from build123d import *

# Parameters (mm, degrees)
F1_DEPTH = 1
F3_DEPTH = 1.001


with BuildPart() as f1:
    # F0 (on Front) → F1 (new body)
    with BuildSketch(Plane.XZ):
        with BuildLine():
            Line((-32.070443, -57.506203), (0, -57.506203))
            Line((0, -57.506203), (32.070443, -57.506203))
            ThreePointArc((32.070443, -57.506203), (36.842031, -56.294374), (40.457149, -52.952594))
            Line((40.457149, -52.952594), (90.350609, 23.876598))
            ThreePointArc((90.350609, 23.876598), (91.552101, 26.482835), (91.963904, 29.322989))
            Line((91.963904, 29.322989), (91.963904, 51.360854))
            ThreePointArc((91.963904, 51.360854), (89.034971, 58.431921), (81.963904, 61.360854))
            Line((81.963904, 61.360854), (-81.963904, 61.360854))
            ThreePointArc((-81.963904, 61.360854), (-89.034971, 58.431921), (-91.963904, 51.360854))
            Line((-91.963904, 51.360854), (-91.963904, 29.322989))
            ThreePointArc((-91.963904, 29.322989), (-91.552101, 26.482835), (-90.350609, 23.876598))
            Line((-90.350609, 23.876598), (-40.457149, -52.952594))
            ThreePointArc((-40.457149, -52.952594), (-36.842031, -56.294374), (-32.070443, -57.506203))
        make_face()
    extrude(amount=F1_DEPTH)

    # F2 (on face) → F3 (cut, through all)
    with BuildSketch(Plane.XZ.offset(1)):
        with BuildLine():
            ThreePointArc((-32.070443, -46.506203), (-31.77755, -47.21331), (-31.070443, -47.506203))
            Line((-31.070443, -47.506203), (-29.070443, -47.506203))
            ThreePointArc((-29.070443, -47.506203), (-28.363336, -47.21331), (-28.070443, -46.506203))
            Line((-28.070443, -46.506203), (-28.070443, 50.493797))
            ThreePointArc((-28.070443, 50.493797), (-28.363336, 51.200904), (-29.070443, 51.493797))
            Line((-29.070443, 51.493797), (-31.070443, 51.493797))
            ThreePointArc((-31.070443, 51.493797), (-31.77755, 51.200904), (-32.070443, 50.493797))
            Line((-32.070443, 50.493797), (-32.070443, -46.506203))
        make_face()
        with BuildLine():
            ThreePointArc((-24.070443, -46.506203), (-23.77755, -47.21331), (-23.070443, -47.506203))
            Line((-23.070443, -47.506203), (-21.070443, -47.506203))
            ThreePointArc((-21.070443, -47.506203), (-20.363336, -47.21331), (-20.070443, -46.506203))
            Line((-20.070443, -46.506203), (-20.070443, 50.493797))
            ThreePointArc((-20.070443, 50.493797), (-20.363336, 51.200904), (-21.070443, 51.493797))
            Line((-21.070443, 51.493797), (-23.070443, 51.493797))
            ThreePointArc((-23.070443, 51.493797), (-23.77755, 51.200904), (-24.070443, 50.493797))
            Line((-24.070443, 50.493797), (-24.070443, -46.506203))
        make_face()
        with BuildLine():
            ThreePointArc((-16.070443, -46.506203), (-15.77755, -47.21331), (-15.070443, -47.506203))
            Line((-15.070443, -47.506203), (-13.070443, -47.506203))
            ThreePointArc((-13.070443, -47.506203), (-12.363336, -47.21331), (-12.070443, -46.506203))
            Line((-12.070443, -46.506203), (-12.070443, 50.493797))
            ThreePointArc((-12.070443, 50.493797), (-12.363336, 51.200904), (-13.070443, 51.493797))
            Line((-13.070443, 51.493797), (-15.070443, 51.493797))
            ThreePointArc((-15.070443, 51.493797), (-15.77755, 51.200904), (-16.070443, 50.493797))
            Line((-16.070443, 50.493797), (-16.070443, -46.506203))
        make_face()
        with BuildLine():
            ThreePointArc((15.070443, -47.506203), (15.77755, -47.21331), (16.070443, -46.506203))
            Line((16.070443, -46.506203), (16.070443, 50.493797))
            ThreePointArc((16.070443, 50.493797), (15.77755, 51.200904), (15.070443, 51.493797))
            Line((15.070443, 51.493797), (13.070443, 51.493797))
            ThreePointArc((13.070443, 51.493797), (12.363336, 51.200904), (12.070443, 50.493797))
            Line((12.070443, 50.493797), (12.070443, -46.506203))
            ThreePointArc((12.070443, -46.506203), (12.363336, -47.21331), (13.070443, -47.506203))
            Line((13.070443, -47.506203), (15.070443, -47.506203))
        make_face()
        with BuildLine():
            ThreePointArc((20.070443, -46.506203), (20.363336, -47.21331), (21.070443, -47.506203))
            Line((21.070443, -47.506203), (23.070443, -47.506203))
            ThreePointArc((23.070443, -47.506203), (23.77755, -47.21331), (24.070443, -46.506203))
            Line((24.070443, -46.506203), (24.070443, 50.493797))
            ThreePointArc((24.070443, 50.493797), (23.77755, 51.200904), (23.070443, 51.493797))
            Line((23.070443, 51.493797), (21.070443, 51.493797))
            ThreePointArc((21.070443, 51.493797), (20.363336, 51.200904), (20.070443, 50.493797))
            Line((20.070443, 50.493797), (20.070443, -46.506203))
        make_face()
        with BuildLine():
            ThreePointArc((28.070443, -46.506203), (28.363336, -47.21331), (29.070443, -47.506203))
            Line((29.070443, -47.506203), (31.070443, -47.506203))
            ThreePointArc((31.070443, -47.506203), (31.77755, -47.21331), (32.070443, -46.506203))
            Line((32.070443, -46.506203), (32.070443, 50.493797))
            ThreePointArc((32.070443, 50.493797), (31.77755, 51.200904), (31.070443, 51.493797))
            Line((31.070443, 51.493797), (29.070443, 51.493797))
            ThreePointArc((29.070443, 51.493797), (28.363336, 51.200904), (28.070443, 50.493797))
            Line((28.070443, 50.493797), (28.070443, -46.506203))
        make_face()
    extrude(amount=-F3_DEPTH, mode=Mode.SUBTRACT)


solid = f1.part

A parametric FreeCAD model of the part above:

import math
import FreeCAD as App
import Part
import Sketcher
from FreeCAD import Vector
Q = App.Units.Quantity

doc = App.newDocument("Part")
params = doc.addObject("Spreadsheet::Sheet", "Params")
for row, (alias, value) in enumerate([
    ("sketch1_radius", "10.000002 mm"),
    ("pad1_length", "1 mm"),
    ("sketch2_radius", "0.999999 mm"),
    ("sketch2_width", "2 mm"),
    ("sketch2_height", "97 mm"),
], start=1):
    params.set(f"A{row}", alias)
    params.set(f"B{row}", "=" + value)
    params.setAlias(f"B{row}", alias)

body = doc.addObject("PartDesign::Body", "Body")

sketch1 = body.newObject("Sketcher::SketchObject", "Sketch")
sketch1.AttachmentSupport = (doc.getObject("XZ_Plane"), [""])
sketch1.MapMode = "FlatFace"
sketch1.addGeometry(Part.LineSegment(Vector(-32.070443, -57.506203, 0), Vector(32.070443, -57.506203, 0)), False)
sketch1.addGeometry(Part.ArcOfCircle(Part.Circle(Vector(32.070443, -47.506201, 0), Vector(0, 0, 1), 10.000002), math.radians(-89.999998), math.radians(-33.000011)), False)
sketch1.addGeometry(Part.LineSegment(Vector(40.457149, -52.952594, 0), Vector(90.350609, 23.876598, 0)), False)
sketch1.addGeometry(Part.ArcOfCircle(Part.Circle(Vector(81.963902, 29.32299, 0), Vector(0, 0, 1), 10.000002), math.radians(-33.000005), math.radians(-0.000005)), False)
sketch1.addGeometry(Part.LineSegment(Vector(91.963904, 29.322989, 0), Vector(91.963904, 51.360854, 0)), False)
sketch1.addGeometry(Part.ArcOfCircle(Part.Circle(Vector(81.963901, 51.360851, 0), Vector(0, 0, 1), 10.000003), math.radians(0.000016), math.radians(89.999984)), False)
sketch1.addGeometry(Part.LineSegment(Vector(81.963904, 61.360854, 0), Vector(-81.963904, 61.360854, 0)), False)
sketch1.addGeometry(Part.ArcOfCircle(Part.Circle(Vector(-81.963901, 51.360851, 0), Vector(0, 0, 1), 10.000003), math.radians(90.000016), math.radians(179.999984)), False)
sketch1.addGeometry(Part.LineSegment(Vector(-91.963904, 51.360854, 0), Vector(-91.963904, 29.322989, 0)), False)
sketch1.addGeometry(Part.ArcOfCircle(Part.Circle(Vector(-81.963902, 29.32299, 0), Vector(0, 0, 1), 10.000002), math.radians(-179.999995), math.radians(-146.999995)), False)
sketch1.addGeometry(Part.LineSegment(Vector(-90.350609, 23.876598, 0), Vector(-40.457149, -52.952594, 0)), False)
sketch1.addGeometry(Part.ArcOfCircle(Part.Circle(Vector(-32.070443, -47.506201, 0), Vector(0, 0, 1), 10.000002), math.radians(-146.999989), math.radians(-90.000002)), False)
sketch1.addConstraint(Sketcher.Constraint("Tangent", 0, 2, 1, 1))
sketch1.addConstraint(Sketcher.Constraint("Tangent", 1, 2, 2, 1))
sketch1.addConstraint(Sketcher.Constraint("Tangent", 2, 2, 3, 1))
sketch1.addConstraint(Sketcher.Constraint("Tangent", 3, 2, 4, 1))
sketch1.addConstraint(Sketcher.Constraint("Tangent", 4, 2, 5, 1))
sketch1.addConstraint(Sketcher.Constraint("Tangent", 5, 2, 6, 1))
sketch1.addConstraint(Sketcher.Constraint("Tangent", 6, 2, 7, 1))
sketch1.addConstraint(Sketcher.Constraint("Tangent", 7, 2, 8, 1))
sketch1.addConstraint(Sketcher.Constraint("Tangent", 8, 2, 9, 1))
sketch1.addConstraint(Sketcher.Constraint("Tangent", 9, 2, 10, 1))
sketch1.addConstraint(Sketcher.Constraint("Tangent", 10, 2, 11, 1))
sketch1.addConstraint(Sketcher.Constraint("Tangent", 11, 2, 0, 1))
sketch1.addConstraint(Sketcher.Constraint("Horizontal", 0))
sketch1.addConstraint(Sketcher.Constraint("Vertical", 4))
sketch1.addConstraint(Sketcher.Constraint("Horizontal", 6))
sketch1.addConstraint(Sketcher.Constraint("Vertical", 8))
sketch1.addConstraint(Sketcher.Constraint("Equal", 1, 3))
sketch1.addConstraint(Sketcher.Constraint("Equal", 3, 5))
sketch1.addConstraint(Sketcher.Constraint("Equal", 5, 7))
sketch1.addConstraint(Sketcher.Constraint("Equal", 7, 9))
sketch1.addConstraint(Sketcher.Constraint("Equal", 9, 11))
sketch1.addConstraint(Sketcher.Constraint("Symmetric", 3, 3, 9, 3, -2))
sketch1.addConstraint(Sketcher.Constraint("Horizontal", 2, 2, 9, 2))
sketch1.addConstraint(Sketcher.Constraint("Radius", 3, Q("10.000002 mm")))
sketch1.addConstraint(Sketcher.Constraint("Angle", 2, Q("57 deg")))
sketch1.addConstraint(Sketcher.Constraint("DistanceX", 6, 2, 6, 1, Q("163.927808 mm")))
sketch1.addConstraint(Sketcher.Constraint("DistanceY", 1, 3, -1, 1, Q("47.506201 mm")))
sketch1.addConstraint(Sketcher.Constraint("DistanceY", -1, 1, 2, 2, Q("23.876598 mm")))
sketch1.addConstraint(Sketcher.Constraint("DistanceY", 4, 1, 4, 2, Q("22.037865 mm")))
sketch1.setExpression("Constraints[23]", "Params.sketch1_radius")
pad1 = body.newObject("PartDesign::Pad", "Pad")
pad1.Profile = sketch1
pad1.setExpression("Length", "Params.pad1_length")

sketch2 = body.newObject("Sketcher::SketchObject", "Sketch001")
sketch2.AttachmentSupport = (doc.getObject("XZ_Plane"), [""])
sketch2.MapMode = "FlatFace"
sketch2.AttachmentOffset = App.Placement(Vector(0, 0, 1), App.Rotation())
sketch2.addGeometry(Part.ArcOfCircle(Part.Circle(Vector(-31.070444, -46.506204, 0), Vector(0, 0, 1), 0.999999), math.radians(179.999957), math.radians(270.000043)), False)
sketch2.addGeometry(Part.LineSegment(Vector(-31.070443, -47.506203, 0), Vector(-29.070443, -47.506203, 0)), False)
sketch2.addGeometry(Part.ArcOfCircle(Part.Circle(Vector(-29.070442, -46.506204, 0), Vector(0, 0, 1), 0.999999), math.radians(-90.000043), math.radians(0.000043)), False)
sketch2.addGeometry(Part.LineSegment(Vector(-28.070443, -46.506203, 0), Vector(-28.070443, 50.493797, 0)), False)
sketch2.addGeometry(Part.ArcOfCircle(Part.Circle(Vector(-29.070442, 50.493798, 0), Vector(0, 0, 1), 0.999999), math.radians(-0.000043), math.radians(90.000043)), False)
sketch2.addGeometry(Part.LineSegment(Vector(-29.070443, 51.493797, 0), Vector(-31.070443, 51.493797, 0)), False)
sketch2.addGeometry(Part.ArcOfCircle(Part.Circle(Vector(-31.070444, 50.493798, 0), Vector(0, 0, 1), 0.999999), math.radians(89.999957), math.radians(180.000043)), False)
sketch2.addGeometry(Part.LineSegment(Vector(-32.070443, 50.493797, 0), Vector(-32.070443, -46.506203, 0)), False)
sketch2.addGeometry(Part.ArcOfCircle(Part.Circle(Vector(-23.070444, -46.506204, 0), Vector(0, 0, 1), 0.999999), math.radians(179.999957), math.radians(270.000043)), False)
sketch2.addGeometry(Part.LineSegment(Vector(-23.070443, -47.506203, 0), Vector(-21.070443, -47.506203, 0)), False)
sketch2.addGeometry(Part.ArcOfCircle(Part.Circle(Vector(-21.070442, -46.506204, 0), Vector(0, 0, 1), 0.999999), math.radians(-90.000043), math.radians(0.000043)), False)
sketch2.addGeometry(Part.LineSegment(Vector(-20.070443, -46.506203, 0), Vector(-20.070443, 50.493797, 0)), False)
sketch2.addGeometry(Part.ArcOfCircle(Part.Circle(Vector(-21.070442, 50.493798, 0), Vector(0, 0, 1), 0.999999), math.radians(-0.000043), math.radians(90.000043)), False)
sketch2.addGeometry(Part.LineSegment(Vector(-21.070443, 51.493797, 0), Vector(-23.070443, 51.493797, 0)), False)
sketch2.addGeometry(Part.ArcOfCircle(Part.Circle(Vector(-23.070444, 50.493798, 0), Vector(0, 0, 1), 0.999999), math.radians(89.999957), math.radians(180.000043)), False)
sketch2.addGeometry(Part.LineSegment(Vector(-24.070443, 50.493797, 0), Vector(-24.070443, -46.506203, 0)), False)
sketch2.addGeometry(Part.ArcOfCircle(Part.Circle(Vector(-15.070444, -46.506204, 0), Vector(0, 0, 1), 0.999999), math.radians(179.999957), math.radians(270.000043)), False)
sketch2.addGeometry(Part.LineSegment(Vector(-15.070443, -47.506203, 0), Vector(-13.070443, -47.506203, 0)), False)
sketch2.addGeometry(Part.ArcOfCircle(Part.Circle(Vector(-13.070442, -46.506204, 0), Vector(0, 0, 1), 0.999999), math.radians(-90.000043), math.radians(0.000043)), False)
sketch2.addGeometry(Part.LineSegment(Vector(-12.070443, -46.506203, 0), Vector(-12.070443, 50.493797, 0)), False)
sketch2.addGeometry(Part.ArcOfCircle(Part.Circle(Vector(-13.070442, 50.493798, 0), Vector(0, 0, 1), 0.999999), math.radians(-0.000043), math.radians(90.000043)), False)
sketch2.addGeometry(Part.LineSegment(Vector(-13.070443, 51.493797, 0), Vector(-15.070443, 51.493797, 0)), False)
sketch2.addGeometry(Part.ArcOfCircle(Part.Circle(Vector(-15.070444, 50.493798, 0), Vector(0, 0, 1), 0.999999), math.radians(89.999957), math.radians(180.000043)), False)
sketch2.addGeometry(Part.LineSegment(Vector(-16.070443, 50.493797, 0), Vector(-16.070443, -46.506203, 0)), False)
sketch2.addGeometry(Part.ArcOfCircle(Part.Circle(Vector(15.070444, -46.506204, 0), Vector(0, 0, 1), 0.999999), math.radians(-90.000043), math.radians(0.000043)), False)
sketch2.addGeometry(Part.LineSegment(Vector(16.070443, -46.506203, 0), Vector(16.070443, 50.493797, 0)), False)
sketch2.addGeometry(Part.ArcOfCircle(Part.Circle(Vector(15.070444, 50.493798, 0), Vector(0, 0, 1), 0.999999), math.radians(-0.000043), math.radians(90.000043)), False)
sketch2.addGeometry(Part.LineSegment(Vector(15.070443, 51.493797, 0), Vector(13.070443, 51.493797, 0)), False)
sketch2.addGeometry(Part.ArcOfCircle(Part.Circle(Vector(13.070442, 50.493798, 0), Vector(0, 0, 1), 0.999999), math.radians(89.999957), math.radians(180.000043)), False)
sketch2.addGeometry(Part.LineSegment(Vector(12.070443, 50.493797, 0), Vector(12.070443, -46.506203, 0)), False)
sketch2.addGeometry(Part.ArcOfCircle(Part.Circle(Vector(13.070442, -46.506204, 0), Vector(0, 0, 1), 0.999999), math.radians(179.999957), math.radians(270.000043)), False)
sketch2.addGeometry(Part.LineSegment(Vector(13.070443, -47.506203, 0), Vector(15.070443, -47.506203, 0)), False)
sketch2.addGeometry(Part.ArcOfCircle(Part.Circle(Vector(21.070442, -46.506204, 0), Vector(0, 0, 1), 0.999999), math.radians(179.999957), math.radians(270.000043)), False)
sketch2.addGeometry(Part.LineSegment(Vector(21.070443, -47.506203, 0), Vector(23.070443, -47.506203, 0)), False)
sketch2.addGeometry(Part.ArcOfCircle(Part.Circle(Vector(23.070444, -46.506204, 0), Vector(0, 0, 1), 0.999999), math.radians(-90.000043), math.radians(0.000043)), False)
sketch2.addGeometry(Part.LineSegment(Vector(24.070443, -46.506203, 0), Vector(24.070443, 50.493797, 0)), False)
sketch2.addGeometry(Part.ArcOfCircle(Part.Circle(Vector(23.070444, 50.493798, 0), Vector(0, 0, 1), 0.999999), math.radians(-0.000043), math.radians(90.000043)), False)
sketch2.addGeometry(Part.LineSegment(Vector(23.070443, 51.493797, 0), Vector(21.070443, 51.493797, 0)), False)
sketch2.addGeometry(Part.ArcOfCircle(Part.Circle(Vector(21.070442, 50.493798, 0), Vector(0, 0, 1), 0.999999), math.radians(89.999957), math.radians(180.000043)), False)
sketch2.addGeometry(Part.LineSegment(Vector(20.070443, 50.493797, 0), Vector(20.070443, -46.506203, 0)), False)
sketch2.addGeometry(Part.ArcOfCircle(Part.Circle(Vector(29.070442, -46.506204, 0), Vector(0, 0, 1), 0.999999), math.radians(179.999957), math.radians(270.000043)), False)
sketch2.addGeometry(Part.LineSegment(Vector(29.070443, -47.506203, 0), Vector(31.070443, -47.506203, 0)), False)
sketch2.addGeometry(Part.ArcOfCircle(Part.Circle(Vector(31.070444, -46.506204, 0), Vector(0, 0, 1), 0.999999), math.radians(-90.000043), math.radians(0.000043)), False)
sketch2.addGeometry(Part.LineSegment(Vector(32.070443, -46.506203, 0), Vector(32.070443, 50.493797, 0)), False)
sketch2.addGeometry(Part.ArcOfCircle(Part.Circle(Vector(31.070444, 50.493798, 0), Vector(0, 0, 1), 0.999999), math.radians(-0.000043), math.radians(90.000043)), False)
sketch2.addGeometry(Part.LineSegment(Vector(31.070443, 51.493797, 0), Vector(29.070443, 51.493797, 0)), False)
sketch2.addGeometry(Part.ArcOfCircle(Part.Circle(Vector(29.070442, 50.493798, 0), Vector(0, 0, 1), 0.999999), math.radians(89.999957), math.radians(180.000043)), False)
sketch2.addGeometry(Part.LineSegment(Vector(28.070443, 50.493797, 0), Vector(28.070443, -46.506203, 0)), False)
sketch2.addConstraint(Sketcher.Constraint("Tangent", 0, 2, 1, 1))
sketch2.addConstraint(Sketcher.Constraint("Tangent", 1, 2, 2, 1))
sketch2.addConstraint(Sketcher.Constraint("Tangent", 2, 2, 3, 1))
sketch2.addConstraint(Sketcher.Constraint("Tangent", 3, 2, 4, 1))
sketch2.addConstraint(Sketcher.Constraint("Tangent", 4, 2, 5, 1))
sketch2.addConstraint(Sketcher.Constraint("Tangent", 5, 2, 6, 1))
sketch2.addConstraint(Sketcher.Constraint("Tangent", 6, 2, 7, 1))
sketch2.addConstraint(Sketcher.Constraint("Tangent", 7, 2, 0, 1))
sketch2.addConstraint(Sketcher.Constraint("Tangent", 8, 2, 9, 1))
sketch2.addConstraint(Sketcher.Constraint("Tangent", 9, 2, 10, 1))
sketch2.addConstraint(Sketcher.Constraint("Tangent", 10, 2, 11, 1))
sketch2.addConstraint(Sketcher.Constraint("Tangent", 11, 2, 12, 1))
sketch2.addConstraint(Sketcher.Constraint("Tangent", 12, 2, 13, 1))
sketch2.addConstraint(Sketcher.Constraint("Tangent", 13, 2, 14, 1))
sketch2.addConstraint(Sketcher.Constraint("Tangent", 14, 2, 15, 1))
sketch2.addConstraint(Sketcher.Constraint("Tangent", 15, 2, 8, 1))
sketch2.addConstraint(Sketcher.Constraint("Tangent", 16, 2, 17, 1))
sketch2.addConstraint(Sketcher.Constraint("Tangent", 17, 2, 18, 1))
sketch2.addConstraint(Sketcher.Constraint("Tangent", 18, 2, 19, 1))
sketch2.addConstraint(Sketcher.Constraint("Tangent", 19, 2, 20, 1))
sketch2.addConstraint(Sketcher.Constraint("Tangent", 20, 2, 21, 1))
sketch2.addConstraint(Sketcher.Constraint("Tangent", 21, 2, 22, 1))
sketch2.addConstraint(Sketcher.Constraint("Tangent", 22, 2, 23, 1))
sketch2.addConstraint(Sketcher.Constraint("Tangent", 23, 2, 16, 1))
sketch2.addConstraint(Sketcher.Constraint("Tangent", 24, 2, 25, 1))
sketch2.addConstraint(Sketcher.Constraint("Tangent", 25, 2, 26, 1))
sketch2.addConstraint(Sketcher.Constraint("Tangent", 26, 2, 27, 1))
sketch2.addConstraint(Sketcher.Constraint("Tangent", 27, 2, 28, 1))
sketch2.addConstraint(Sketcher.Constraint("Tangent", 28, 2, 29, 1))
sketch2.addConstraint(Sketcher.Constraint("Tangent", 29, 2, 30, 1))
sketch2.addConstraint(Sketcher.Constraint("Tangent", 30, 2, 31, 1))
sketch2.addConstraint(Sketcher.Constraint("Tangent", 31, 2, 24, 1))
sketch2.addConstraint(Sketcher.Constraint("Tangent", 32, 2, 33, 1))
sketch2.addConstraint(Sketcher.Constraint("Tangent", 33, 2, 34, 1))
sketch2.addConstraint(Sketcher.Constraint("Tangent", 34, 2, 35, 1))
sketch2.addConstraint(Sketcher.Constraint("Tangent", 35, 2, 36, 1))
sketch2.addConstraint(Sketcher.Constraint("Tangent", 36, 2, 37, 1))
sketch2.addConstraint(Sketcher.Constraint("Tangent", 37, 2, 38, 1))
sketch2.addConstraint(Sketcher.Constraint("Tangent", 38, 2, 39, 1))
sketch2.addConstraint(Sketcher.Constraint("Tangent", 39, 2, 32, 1))
sketch2.addConstraint(Sketcher.Constraint("Tangent", 40, 2, 41, 1))
sketch2.addConstraint(Sketcher.Constraint("Tangent", 41, 2, 42, 1))
sketch2.addConstraint(Sketcher.Constraint("Tangent", 42, 2, 43, 1))
sketch2.addConstraint(Sketcher.Constraint("Tangent", 43, 2, 44, 1))
sketch2.addConstraint(Sketcher.Constraint("Tangent", 44, 2, 45, 1))
sketch2.addConstraint(Sketcher.Constraint("Tangent", 45, 2, 46, 1))
sketch2.addConstraint(Sketcher.Constraint("Tangent", 46, 2, 47, 1))
sketch2.addConstraint(Sketcher.Constraint("Tangent", 47, 2, 40, 1))
sketch2.addConstraint(Sketcher.Constraint("Horizontal", 1))
sketch2.addConstraint(Sketcher.Constraint("Vertical", 3))
sketch2.addConstraint(Sketcher.Constraint("Horizontal", 5))
sketch2.addConstraint(Sketcher.Constraint("Vertical", 7))
sketch2.addConstraint(Sketcher.Constraint("Horizontal", 9))
sketch2.addConstraint(Sketcher.Constraint("Vertical", 11))
sketch2.addConstraint(Sketcher.Constraint("Horizontal", 13))
sketch2.addConstraint(Sketcher.Constraint("Vertical", 15))
sketch2.addConstraint(Sketcher.Constraint("Horizontal", 17))
sketch2.addConstraint(Sketcher.Constraint("Vertical", 19))
sketch2.addConstraint(Sketcher.Constraint("Horizontal", 21))
sketch2.addConstraint(Sketcher.Constraint("Vertical", 23))
sketch2.addConstraint(Sketcher.Constraint("Vertical", 25))
sketch2.addConstraint(Sketcher.Constraint("Horizontal", 27))
sketch2.addConstraint(Sketcher.Constraint("Vertical", 29))
sketch2.addConstraint(Sketcher.Constraint("Horizontal", 31))
sketch2.addConstraint(Sketcher.Constraint("Horizontal", 33))
sketch2.addConstraint(Sketcher.Constraint("Vertical", 35))
sketch2.addConstraint(Sketcher.Constraint("Horizontal", 37))
sketch2.addConstraint(Sketcher.Constraint("Vertical", 39))
sketch2.addConstraint(Sketcher.Constraint("Horizontal", 41))
sketch2.addConstraint(Sketcher.Constraint("Vertical", 43))
sketch2.addConstraint(Sketcher.Constraint("Horizontal", 45))
sketch2.addConstraint(Sketcher.Constraint("Vertical", 47))
sketch2.addConstraint(Sketcher.Constraint("Equal", 0, 2))
sketch2.addConstraint(Sketcher.Constraint("Equal", 2, 4))
sketch2.addConstraint(Sketcher.Constraint("Equal", 4, 6))
sketch2.addConstraint(Sketcher.Constraint("Equal", 6, 8))
sketch2.addConstraint(Sketcher.Constraint("Equal", 8, 10))
sketch2.addConstraint(Sketcher.Constraint("Equal", 10, 12))
sketch2.addConstraint(Sketcher.Constraint("Equal", 12, 14))
sketch2.addConstraint(Sketcher.Constraint("Equal", 14, 16))
sketch2.addConstraint(Sketcher.Constraint("Equal", 16, 18))
sketch2.addConstraint(Sketcher.Constraint("Equal", 18, 20))
sketch2.addConstraint(Sketcher.Constraint("Equal", 20, 22))
sketch2.addConstraint(Sketcher.Constraint("Equal", 22, 24))
sketch2.addConstraint(Sketcher.Constraint("Equal", 24, 26))
sketch2.addConstraint(Sketcher.Constraint("Equal", 26, 28))
sketch2.addConstraint(Sketcher.Constraint("Equal", 28, 30))
sketch2.addConstraint(Sketcher.Constraint("Equal", 30, 32))
sketch2.addConstraint(Sketcher.Constraint("Equal", 32, 34))
sketch2.addConstraint(Sketcher.Constraint("Equal", 34, 36))
sketch2.addConstraint(Sketcher.Constraint("Equal", 36, 38))
sketch2.addConstraint(Sketcher.Constraint("Equal", 38, 40))
sketch2.addConstraint(Sketcher.Constraint("Equal", 40, 42))
sketch2.addConstraint(Sketcher.Constraint("Equal", 42, 44))
sketch2.addConstraint(Sketcher.Constraint("Equal", 44, 46))
sketch2.addConstraint(Sketcher.Constraint("Symmetric", 16, 3, 24, 3, -2))
sketch2.addConstraint(Sketcher.Constraint("Symmetric", 20, 3, 28, 3, -2))
sketch2.addConstraint(Sketcher.Constraint("Symmetric", 10, 3, 32, 3, -2))
sketch2.addConstraint(Sketcher.Constraint("Symmetric", 14, 3, 36, 3, -2))
sketch2.addConstraint(Sketcher.Constraint("Symmetric", 2, 3, 40, 3, -2))
sketch2.addConstraint(Sketcher.Constraint("Symmetric", 6, 3, 44, 3, -2))
sketch2.addConstraint(Sketcher.Constraint("Horizontal", 2, 3, 8, 3))
sketch2.addConstraint(Sketcher.Constraint("Horizontal", 6, 3, 12, 3))
sketch2.addConstraint(Sketcher.Constraint("Horizontal", 10, 3, 16, 3))
sketch2.addConstraint(Sketcher.Constraint("Horizontal", 14, 3, 20, 3))
sketch2.addConstraint(Sketcher.Constraint("Equal", 5, 9))
sketch2.addConstraint(Sketcher.Constraint("Equal", 13, 17))
sketch2.addConstraint(Sketcher.Constraint("Radius", 0, Q("0.999999 mm")))
sketch2.addConstraint(Sketcher.Constraint("DistanceX", 1, 1, 1, 2, Q("2 mm")))
sketch2.addConstraint(Sketcher.Constraint("DistanceY", 3, 1, 3, 2, Q("97 mm")))
sketch2.addConstraint(Sketcher.Constraint("DistanceX", 0, 3, -1, 1, Q("31.070444 mm")))
sketch2.addConstraint(Sketcher.Constraint("DistanceY", 0, 3, -1, 1, Q("46.506204 mm")))
sketch2.addConstraint(Sketcher.Constraint("DistanceX", 8, 3, -1, 1, Q("23.070444 mm")))
sketch2.addConstraint(Sketcher.Constraint("DistanceX", 16, 3, -1, 1, Q("15.070444 mm")))
sketch2.setExpression("Constraints[107]", "Params.sketch2_radius")
sketch2.setExpression("Constraints[108]", "Params.sketch2_width")
sketch2.setExpression("Constraints[109]", "Params.sketch2_height")
pocket1 = body.newObject("PartDesign::Pocket", "Pocket")
pocket1.Profile = sketch2
pocket1.Type = "ThroughAll"

doc.recompute()
